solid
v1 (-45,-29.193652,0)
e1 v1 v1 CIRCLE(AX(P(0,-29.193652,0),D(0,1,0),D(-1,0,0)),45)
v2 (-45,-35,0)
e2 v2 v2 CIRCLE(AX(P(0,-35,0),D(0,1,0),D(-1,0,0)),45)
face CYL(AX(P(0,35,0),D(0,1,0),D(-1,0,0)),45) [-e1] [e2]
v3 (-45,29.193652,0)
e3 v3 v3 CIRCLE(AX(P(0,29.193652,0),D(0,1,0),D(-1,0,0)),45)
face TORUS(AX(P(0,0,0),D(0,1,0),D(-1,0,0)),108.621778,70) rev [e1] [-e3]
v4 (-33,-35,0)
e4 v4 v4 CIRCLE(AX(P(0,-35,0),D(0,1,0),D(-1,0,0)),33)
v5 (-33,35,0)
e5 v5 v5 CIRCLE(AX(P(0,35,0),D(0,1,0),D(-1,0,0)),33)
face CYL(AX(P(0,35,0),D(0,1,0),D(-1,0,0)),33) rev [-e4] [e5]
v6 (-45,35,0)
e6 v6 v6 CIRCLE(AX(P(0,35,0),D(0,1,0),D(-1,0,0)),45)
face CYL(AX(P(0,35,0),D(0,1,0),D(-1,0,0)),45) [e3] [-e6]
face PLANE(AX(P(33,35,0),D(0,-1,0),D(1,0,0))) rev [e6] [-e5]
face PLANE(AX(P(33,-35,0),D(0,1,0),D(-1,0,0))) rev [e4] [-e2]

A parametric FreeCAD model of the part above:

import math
import FreeCAD as App
import Part
import Sketcher
from FreeCAD import Vector
Q = App.Units.Quantity

doc = App.newDocument("Part")
params = doc.addObject("Spreadsheet::Sheet", "Params")
for row, (alias, value) in enumerate([
    ("sketch1_radius", "70 mm"),
    ("sketch1_width", "12 mm"),
    ("sketch1_height", "70 mm"),
    ("revolution_angle", "360 deg"),
], start=1):
    params.set(f"A{row}", alias)
    params.set(f"B{row}", "=" + value)
    params.setAlias(f"B{row}", alias)

body = doc.addObject("PartDesign::Body", "Body")

sketch1 = body.newObject("Sketcher::SketchObject", "Sketch")
sketch1.AttachmentSupport = (doc.getObject("XY_Plane"), [""])
sketch1.MapMode = "FlatFace"
sketch1.addGeometry([
    Part.LineSegment(Vector(45, 35, 0), Vector(33, 35, 0)),
    Part.LineSegment(Vector(33, 35, 0), Vector(33, -35, 0)),
    Part.LineSegment(Vector(33, -35, 0), Vector(45, -35, 0)),
    Part.LineSegment(Vector(45, -35, 0), Vector(45, -29, 0)),
    Part.ArcOfCircle(Part.Circle(Vector(109, 0, 0), Vector(0, 0, 1), 70), math.radians(155), math.radians(205)),
    Part.LineSegment(Vector(45, 29, 0), Vector(45, 35, 0)),
], False)
sketch1.addConstraint([
    Sketcher.Constraint("Coincident", 0, 2, 1, 1),
    Sketcher.Constraint("Coincident", 1, 2, 2, 1),
    Sketcher.Constraint("Coincident", 2, 2, 3, 1),
    Sketcher.Constraint("Coincident", 3, 2, 4, 2),
    Sketcher.Constraint("Coincident", 4, 1, 5, 1),
    Sketcher.Constraint("Coincident", 5, 2, 0, 1),
    Sketcher.Constraint("Horizontal", 0),
    Sketcher.Constraint("Vertical", 1),
    Sketcher.Constraint("Horizontal", 2),
    Sketcher.Constraint("Vertical", 3),
    Sketcher.Constraint("Vertical", 5),
    Sketcher.Constraint("Symmetric", 3, 2, 4, 1, -1),
    Sketcher.Constraint("Equal", 3, 5),
    Sketcher.Constraint("Radius", 4, Q("70 mm")),
    Sketcher.Constraint("DistanceX", 0, 2, 0, 1, Q("12 mm")),
    Sketcher.Constraint("DistanceY", 1, 2, 1, 1, Q("70 mm")),
    Sketcher.Constraint("DistanceX", -1, 1, 0, 2, Q("33 mm")),
    Sketcher.Constraint("DistanceY", 3, 1, 3, 2, Q("5.806348 mm")),
])
sketch1.setExpression("Constraints[13]", "Params.sketch1_radius")
sketch1.setExpression("Constraints[14]", "Params.sketch1_width")
sketch1.setExpression("Constraints[15]", "Params.sketch1_height")
revolution = body.newObject("PartDesign::Revolution", "Revolution")
revolution.Profile = sketch1
revolution.ReferenceAxis = (sketch1, ["V_Axis"])
revolution.setExpression("Angle", "Params.revolution_angle")

doc.recompute()
